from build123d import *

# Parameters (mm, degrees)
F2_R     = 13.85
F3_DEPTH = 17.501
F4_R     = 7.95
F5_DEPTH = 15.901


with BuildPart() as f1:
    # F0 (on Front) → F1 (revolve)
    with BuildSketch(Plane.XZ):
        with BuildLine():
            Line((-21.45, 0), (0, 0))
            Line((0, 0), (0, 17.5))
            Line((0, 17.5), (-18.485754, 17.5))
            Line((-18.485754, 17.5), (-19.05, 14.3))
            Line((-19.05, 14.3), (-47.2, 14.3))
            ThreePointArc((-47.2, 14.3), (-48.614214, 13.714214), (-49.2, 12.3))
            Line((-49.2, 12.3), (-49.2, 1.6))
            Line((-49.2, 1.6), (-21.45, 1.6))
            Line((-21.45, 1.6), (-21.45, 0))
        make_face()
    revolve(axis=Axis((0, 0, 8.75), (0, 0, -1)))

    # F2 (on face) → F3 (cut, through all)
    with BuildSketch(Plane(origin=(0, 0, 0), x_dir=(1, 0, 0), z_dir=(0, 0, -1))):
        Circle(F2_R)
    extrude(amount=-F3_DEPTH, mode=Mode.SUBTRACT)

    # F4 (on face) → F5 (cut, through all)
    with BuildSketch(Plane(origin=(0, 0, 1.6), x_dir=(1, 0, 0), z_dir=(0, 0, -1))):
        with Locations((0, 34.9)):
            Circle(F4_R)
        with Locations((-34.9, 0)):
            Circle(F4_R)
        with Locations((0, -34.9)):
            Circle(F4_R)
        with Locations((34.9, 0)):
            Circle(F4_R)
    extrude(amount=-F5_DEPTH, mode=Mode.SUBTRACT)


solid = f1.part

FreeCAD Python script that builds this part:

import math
import FreeCAD as App
import Part
import Sketcher
from FreeCAD import Vector
Q = App.Units.Quantity

doc = App.newDocument("Part")
body = doc.addObject("PartDesign::Body", "Body")

# Sketch on XZ plane
sketch1 = body.newObject("Sketcher::SketchObject", "Sketch")
sketch1.AttachmentSupport = (doc.getObject("XZ_Plane"), [""])
sketch1.MapMode = "FlatFace"
sketch1.addGeometry([
    Part.LineSegment(Vector(-21.4, 0, 0), Vector(0, 0, 0)),  # 0
    Part.LineSegment(Vector(0, 0, 0), Vector(0, 17.5, 0)),  # 1
    Part.LineSegment(Vector(0, 17.5, 0), Vector(-18.5, 17.5, 0)),  # 2
    Part.LineSegment(Vector(-18.5, 17.5, 0), Vector(-19.1, 14.3, 0)),  # 3
    Part.LineSegment(Vector(-19.1, 14.3, 0), Vector(-47.2, 14.3, 0)),  # 4
    Part.ArcOfCircle(Part.Circle(Vector(-47.2, 12.3, 0), Vector(0, 0, 1), 2), math.radians(90), math.radians(180)),  # 5
    Part.LineSegment(Vector(-49.2, 12.3, 0), Vector(-49.2, 1.6, 0)),  # 6
    Part.LineSegment(Vector(-49.2, 1.6, 0), Vector(-21.4, 1.6, 0)),  # 7
    Part.LineSegment(Vector(-21.4, 1.6, 0), Vector(-21.4, 0, 0)),  # 8
], False)
sketch1.addConstraint([
    Sketcher.Constraint("Coincident", 0, 2, 1, 1),
    Sketcher.Constraint("Coincident", 1, 2, 2, 1),
    Sketcher.Constraint("Coincident", 2, 2, 3, 1),
    Sketcher.Constraint("Coincident", 3, 2, 4, 1),
    Sketcher.Constraint("Tangent", 4, 2, 5, 1),
    Sketcher.Constraint("Tangent", 5, 2, 6, 1),
    Sketcher.Constraint("Coincident", 6, 2, 7, 1),
    Sketcher.Constraint("Coincident", 7, 2, 8, 1),
    Sketcher.Constraint("Coincident", 8, 2, 0, 1),
    Sketcher.Constraint("Horizontal", 0),
    Sketcher.Constraint("Vertical", 1),
    Sketcher.Constraint("Horizontal", 2),
    Sketcher.Constraint("Horizontal", 4),
    Sketcher.Constraint("Vertical", 6),
    Sketcher.Constraint("Horizontal", 7),
    Sketcher.Constraint("Vertical", 8),
    Sketcher.Constraint("Coincident", 0, 2, -1, 1),
    Sketcher.Constraint("Radius", 5, 1.999999),
    Sketcher.Constraint("Angle", 3, Q("-99.999994 deg")),
    Sketcher.Constraint("DistanceY", 1, 1, 1, 2, 17.5),
    Sketcher.Constraint("DistanceY", 6, 2, 6, 1, 10.7),
    Sketcher.Constraint("DistanceY", 8, 2, 8, 1, 1.6),
    Sketcher.Constraint("DistanceX", 0, 1, 0, 2, 21.45),
    Sketcher.Constraint("DistanceX", 4, 2, 4, 1, 28.15),
    Sketcher.Constraint("DistanceX", 7, 1, 7, 2, 27.75),
])
revolution = body.newObject("PartDesign::Revolution", "Revolution")
revolution.Profile = sketch1
revolution.ReferenceAxis = (sketch1, ["V_Axis"])
revolution.Angle = 360

# Sketch on XY plane
sketch2 = body.newObject("Sketcher::SketchObject", "Sketch001")
sketch2.AttachmentSupport = (doc.getObject("XY_Plane"), [""])
sketch2.MapMode = "FlatFace"
sketch2.addGeometry(Part.Circle(Vector(0, 0, 0), Vector(0, 0, 1), 14), False)
sketch2.addConstraint([
    Sketcher.Constraint("Coincident", 0, 3, -1, 1),
    Sketcher.Constraint("Diameter", 0, 27.7),
])
pocket1 = body.newObject("PartDesign::Pocket", "Pocket")
pocket1.Profile = sketch2
pocket1.Type = "ThroughAll"
pocket1.Reversed = True

# Sketch on XY plane
sketch3 = body.newObject("Sketcher::SketchObject", "Sketch002")
sketch3.AttachmentSupport = (doc.getObject("XY_Plane"), [""])
sketch3.MapMode = "FlatFace"
sketch3.AttachmentOffset = App.Placement(Vector(0, 0, 1.6), App.Rotation())
sketch3.addGeometry([
    Part.Circle(Vector(0, -35, 0), Vector(0, 0, 1), 8),
    Part.Circle(Vector(-35, 0, 0), Vector(0, 0, 1), 8),
    Part.Circle(Vector(0, 35, 0), Vector(0, 0, 1), 8),
    Part.Circle(Vector(35, 0, 0), Vector(0, 0, 1), 8),
], False)
sketch3.addConstraint([
    Sketcher.Constraint("Equal", 0, 1),
    Sketcher.Constraint("Equal", 1, 2),
    Sketcher.Constraint("Equal", 2, 3),
    Sketcher.Constraint("Symmetric", 0, 3, 2, 3, -1, 1),
    Sketcher.Constraint("Symmetric", 1, 3, 3, 3, -1, 1),
    Sketcher.Constraint("PointOnObject", 0, 3, -2),
    Sketcher.Constraint("PointOnObject", 1, 3, -1),
    Sketcher.Constraint("Diameter", 0, 15.9),
    Sketcher.Constraint("DistanceY", 0, 3, -1, 1, 34.9),
    Sketcher.Constraint("DistanceX", 1, 3, -1, 1, 34.9),
])
pocket2 = body.newObject("PartDesign::Pocket", "Pocket001")
pocket2.Profile = sketch3
pocket2.Type = "ThroughAll"
pocket2.Reversed = True

doc.recompute()
